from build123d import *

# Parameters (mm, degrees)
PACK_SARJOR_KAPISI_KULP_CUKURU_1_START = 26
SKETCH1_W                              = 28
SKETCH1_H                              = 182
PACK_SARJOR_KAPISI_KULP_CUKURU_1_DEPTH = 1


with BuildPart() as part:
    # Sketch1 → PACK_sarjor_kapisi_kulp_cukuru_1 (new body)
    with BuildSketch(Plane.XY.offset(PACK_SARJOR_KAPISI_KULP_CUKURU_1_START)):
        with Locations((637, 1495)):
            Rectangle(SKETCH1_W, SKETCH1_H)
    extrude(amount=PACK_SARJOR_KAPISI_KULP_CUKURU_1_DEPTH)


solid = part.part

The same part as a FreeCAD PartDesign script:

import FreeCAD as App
import Part
import Sketcher
from FreeCAD import Vector
Q = App.Units.Quantity

doc = App.newDocument("Part")
body = doc.addObject("PartDesign::Body", "Body")

sketch1 = body.newObject("Sketcher::SketchObject", "Sketch")
sketch1.AttachmentSupport = (doc.getObject("XY_Plane"), [""])
sketch1.MapMode = "FlatFace"
sketch1.AttachmentOffset = App.Placement(Vector(0, 0, 26), App.Rotation())
sketch1.addGeometry([
    Part.LineSegment(Vector(623, 1586, 0), Vector(623, 1404, 0)),
    Part.LineSegment(Vector(623, 1404, 0), Vector(651, 1404, 0)),
    Part.LineSegment(Vector(651, 1404, 0), Vector(651, 1586, 0)),
    Part.LineSegment(Vector(651, 1586, 0), Vector(623, 1586, 0)),
], False)
sketch1.addConstraint([
    Sketcher.Constraint("Coincident", 0, 2, 1, 1),
    Sketcher.Constraint("Coincident", 1, 2, 2, 1),
    Sketcher.Constraint("Coincident", 2, 2, 3, 1),
    Sketcher.Constraint("Coincident", 3, 2, 0, 1),
    Sketcher.Constraint("Vertical", 0),
    Sketcher.Constraint("Horizontal", 1),
    Sketcher.Constraint("Vertical", 2),
    Sketcher.Constraint("Horizontal", 3),
    Sketcher.Constraint("DistanceX", 1, 1, 1, 2, Q("28 mm")),
    Sketcher.Constraint("DistanceY", 0, 2, 0, 1, Q("182 mm")),
    Sketcher.Constraint("DistanceX", -1, 1, 0, 2, Q("623 mm")),
    Sketcher.Constraint("DistanceY", -1, 1, 0, 2, Q("1404 mm")),
])
pad1 = body.newObject("PartDesign::Pad", "Pad")
pad1.Profile = sketch1
pad1.Length = 1

doc.recompute()
